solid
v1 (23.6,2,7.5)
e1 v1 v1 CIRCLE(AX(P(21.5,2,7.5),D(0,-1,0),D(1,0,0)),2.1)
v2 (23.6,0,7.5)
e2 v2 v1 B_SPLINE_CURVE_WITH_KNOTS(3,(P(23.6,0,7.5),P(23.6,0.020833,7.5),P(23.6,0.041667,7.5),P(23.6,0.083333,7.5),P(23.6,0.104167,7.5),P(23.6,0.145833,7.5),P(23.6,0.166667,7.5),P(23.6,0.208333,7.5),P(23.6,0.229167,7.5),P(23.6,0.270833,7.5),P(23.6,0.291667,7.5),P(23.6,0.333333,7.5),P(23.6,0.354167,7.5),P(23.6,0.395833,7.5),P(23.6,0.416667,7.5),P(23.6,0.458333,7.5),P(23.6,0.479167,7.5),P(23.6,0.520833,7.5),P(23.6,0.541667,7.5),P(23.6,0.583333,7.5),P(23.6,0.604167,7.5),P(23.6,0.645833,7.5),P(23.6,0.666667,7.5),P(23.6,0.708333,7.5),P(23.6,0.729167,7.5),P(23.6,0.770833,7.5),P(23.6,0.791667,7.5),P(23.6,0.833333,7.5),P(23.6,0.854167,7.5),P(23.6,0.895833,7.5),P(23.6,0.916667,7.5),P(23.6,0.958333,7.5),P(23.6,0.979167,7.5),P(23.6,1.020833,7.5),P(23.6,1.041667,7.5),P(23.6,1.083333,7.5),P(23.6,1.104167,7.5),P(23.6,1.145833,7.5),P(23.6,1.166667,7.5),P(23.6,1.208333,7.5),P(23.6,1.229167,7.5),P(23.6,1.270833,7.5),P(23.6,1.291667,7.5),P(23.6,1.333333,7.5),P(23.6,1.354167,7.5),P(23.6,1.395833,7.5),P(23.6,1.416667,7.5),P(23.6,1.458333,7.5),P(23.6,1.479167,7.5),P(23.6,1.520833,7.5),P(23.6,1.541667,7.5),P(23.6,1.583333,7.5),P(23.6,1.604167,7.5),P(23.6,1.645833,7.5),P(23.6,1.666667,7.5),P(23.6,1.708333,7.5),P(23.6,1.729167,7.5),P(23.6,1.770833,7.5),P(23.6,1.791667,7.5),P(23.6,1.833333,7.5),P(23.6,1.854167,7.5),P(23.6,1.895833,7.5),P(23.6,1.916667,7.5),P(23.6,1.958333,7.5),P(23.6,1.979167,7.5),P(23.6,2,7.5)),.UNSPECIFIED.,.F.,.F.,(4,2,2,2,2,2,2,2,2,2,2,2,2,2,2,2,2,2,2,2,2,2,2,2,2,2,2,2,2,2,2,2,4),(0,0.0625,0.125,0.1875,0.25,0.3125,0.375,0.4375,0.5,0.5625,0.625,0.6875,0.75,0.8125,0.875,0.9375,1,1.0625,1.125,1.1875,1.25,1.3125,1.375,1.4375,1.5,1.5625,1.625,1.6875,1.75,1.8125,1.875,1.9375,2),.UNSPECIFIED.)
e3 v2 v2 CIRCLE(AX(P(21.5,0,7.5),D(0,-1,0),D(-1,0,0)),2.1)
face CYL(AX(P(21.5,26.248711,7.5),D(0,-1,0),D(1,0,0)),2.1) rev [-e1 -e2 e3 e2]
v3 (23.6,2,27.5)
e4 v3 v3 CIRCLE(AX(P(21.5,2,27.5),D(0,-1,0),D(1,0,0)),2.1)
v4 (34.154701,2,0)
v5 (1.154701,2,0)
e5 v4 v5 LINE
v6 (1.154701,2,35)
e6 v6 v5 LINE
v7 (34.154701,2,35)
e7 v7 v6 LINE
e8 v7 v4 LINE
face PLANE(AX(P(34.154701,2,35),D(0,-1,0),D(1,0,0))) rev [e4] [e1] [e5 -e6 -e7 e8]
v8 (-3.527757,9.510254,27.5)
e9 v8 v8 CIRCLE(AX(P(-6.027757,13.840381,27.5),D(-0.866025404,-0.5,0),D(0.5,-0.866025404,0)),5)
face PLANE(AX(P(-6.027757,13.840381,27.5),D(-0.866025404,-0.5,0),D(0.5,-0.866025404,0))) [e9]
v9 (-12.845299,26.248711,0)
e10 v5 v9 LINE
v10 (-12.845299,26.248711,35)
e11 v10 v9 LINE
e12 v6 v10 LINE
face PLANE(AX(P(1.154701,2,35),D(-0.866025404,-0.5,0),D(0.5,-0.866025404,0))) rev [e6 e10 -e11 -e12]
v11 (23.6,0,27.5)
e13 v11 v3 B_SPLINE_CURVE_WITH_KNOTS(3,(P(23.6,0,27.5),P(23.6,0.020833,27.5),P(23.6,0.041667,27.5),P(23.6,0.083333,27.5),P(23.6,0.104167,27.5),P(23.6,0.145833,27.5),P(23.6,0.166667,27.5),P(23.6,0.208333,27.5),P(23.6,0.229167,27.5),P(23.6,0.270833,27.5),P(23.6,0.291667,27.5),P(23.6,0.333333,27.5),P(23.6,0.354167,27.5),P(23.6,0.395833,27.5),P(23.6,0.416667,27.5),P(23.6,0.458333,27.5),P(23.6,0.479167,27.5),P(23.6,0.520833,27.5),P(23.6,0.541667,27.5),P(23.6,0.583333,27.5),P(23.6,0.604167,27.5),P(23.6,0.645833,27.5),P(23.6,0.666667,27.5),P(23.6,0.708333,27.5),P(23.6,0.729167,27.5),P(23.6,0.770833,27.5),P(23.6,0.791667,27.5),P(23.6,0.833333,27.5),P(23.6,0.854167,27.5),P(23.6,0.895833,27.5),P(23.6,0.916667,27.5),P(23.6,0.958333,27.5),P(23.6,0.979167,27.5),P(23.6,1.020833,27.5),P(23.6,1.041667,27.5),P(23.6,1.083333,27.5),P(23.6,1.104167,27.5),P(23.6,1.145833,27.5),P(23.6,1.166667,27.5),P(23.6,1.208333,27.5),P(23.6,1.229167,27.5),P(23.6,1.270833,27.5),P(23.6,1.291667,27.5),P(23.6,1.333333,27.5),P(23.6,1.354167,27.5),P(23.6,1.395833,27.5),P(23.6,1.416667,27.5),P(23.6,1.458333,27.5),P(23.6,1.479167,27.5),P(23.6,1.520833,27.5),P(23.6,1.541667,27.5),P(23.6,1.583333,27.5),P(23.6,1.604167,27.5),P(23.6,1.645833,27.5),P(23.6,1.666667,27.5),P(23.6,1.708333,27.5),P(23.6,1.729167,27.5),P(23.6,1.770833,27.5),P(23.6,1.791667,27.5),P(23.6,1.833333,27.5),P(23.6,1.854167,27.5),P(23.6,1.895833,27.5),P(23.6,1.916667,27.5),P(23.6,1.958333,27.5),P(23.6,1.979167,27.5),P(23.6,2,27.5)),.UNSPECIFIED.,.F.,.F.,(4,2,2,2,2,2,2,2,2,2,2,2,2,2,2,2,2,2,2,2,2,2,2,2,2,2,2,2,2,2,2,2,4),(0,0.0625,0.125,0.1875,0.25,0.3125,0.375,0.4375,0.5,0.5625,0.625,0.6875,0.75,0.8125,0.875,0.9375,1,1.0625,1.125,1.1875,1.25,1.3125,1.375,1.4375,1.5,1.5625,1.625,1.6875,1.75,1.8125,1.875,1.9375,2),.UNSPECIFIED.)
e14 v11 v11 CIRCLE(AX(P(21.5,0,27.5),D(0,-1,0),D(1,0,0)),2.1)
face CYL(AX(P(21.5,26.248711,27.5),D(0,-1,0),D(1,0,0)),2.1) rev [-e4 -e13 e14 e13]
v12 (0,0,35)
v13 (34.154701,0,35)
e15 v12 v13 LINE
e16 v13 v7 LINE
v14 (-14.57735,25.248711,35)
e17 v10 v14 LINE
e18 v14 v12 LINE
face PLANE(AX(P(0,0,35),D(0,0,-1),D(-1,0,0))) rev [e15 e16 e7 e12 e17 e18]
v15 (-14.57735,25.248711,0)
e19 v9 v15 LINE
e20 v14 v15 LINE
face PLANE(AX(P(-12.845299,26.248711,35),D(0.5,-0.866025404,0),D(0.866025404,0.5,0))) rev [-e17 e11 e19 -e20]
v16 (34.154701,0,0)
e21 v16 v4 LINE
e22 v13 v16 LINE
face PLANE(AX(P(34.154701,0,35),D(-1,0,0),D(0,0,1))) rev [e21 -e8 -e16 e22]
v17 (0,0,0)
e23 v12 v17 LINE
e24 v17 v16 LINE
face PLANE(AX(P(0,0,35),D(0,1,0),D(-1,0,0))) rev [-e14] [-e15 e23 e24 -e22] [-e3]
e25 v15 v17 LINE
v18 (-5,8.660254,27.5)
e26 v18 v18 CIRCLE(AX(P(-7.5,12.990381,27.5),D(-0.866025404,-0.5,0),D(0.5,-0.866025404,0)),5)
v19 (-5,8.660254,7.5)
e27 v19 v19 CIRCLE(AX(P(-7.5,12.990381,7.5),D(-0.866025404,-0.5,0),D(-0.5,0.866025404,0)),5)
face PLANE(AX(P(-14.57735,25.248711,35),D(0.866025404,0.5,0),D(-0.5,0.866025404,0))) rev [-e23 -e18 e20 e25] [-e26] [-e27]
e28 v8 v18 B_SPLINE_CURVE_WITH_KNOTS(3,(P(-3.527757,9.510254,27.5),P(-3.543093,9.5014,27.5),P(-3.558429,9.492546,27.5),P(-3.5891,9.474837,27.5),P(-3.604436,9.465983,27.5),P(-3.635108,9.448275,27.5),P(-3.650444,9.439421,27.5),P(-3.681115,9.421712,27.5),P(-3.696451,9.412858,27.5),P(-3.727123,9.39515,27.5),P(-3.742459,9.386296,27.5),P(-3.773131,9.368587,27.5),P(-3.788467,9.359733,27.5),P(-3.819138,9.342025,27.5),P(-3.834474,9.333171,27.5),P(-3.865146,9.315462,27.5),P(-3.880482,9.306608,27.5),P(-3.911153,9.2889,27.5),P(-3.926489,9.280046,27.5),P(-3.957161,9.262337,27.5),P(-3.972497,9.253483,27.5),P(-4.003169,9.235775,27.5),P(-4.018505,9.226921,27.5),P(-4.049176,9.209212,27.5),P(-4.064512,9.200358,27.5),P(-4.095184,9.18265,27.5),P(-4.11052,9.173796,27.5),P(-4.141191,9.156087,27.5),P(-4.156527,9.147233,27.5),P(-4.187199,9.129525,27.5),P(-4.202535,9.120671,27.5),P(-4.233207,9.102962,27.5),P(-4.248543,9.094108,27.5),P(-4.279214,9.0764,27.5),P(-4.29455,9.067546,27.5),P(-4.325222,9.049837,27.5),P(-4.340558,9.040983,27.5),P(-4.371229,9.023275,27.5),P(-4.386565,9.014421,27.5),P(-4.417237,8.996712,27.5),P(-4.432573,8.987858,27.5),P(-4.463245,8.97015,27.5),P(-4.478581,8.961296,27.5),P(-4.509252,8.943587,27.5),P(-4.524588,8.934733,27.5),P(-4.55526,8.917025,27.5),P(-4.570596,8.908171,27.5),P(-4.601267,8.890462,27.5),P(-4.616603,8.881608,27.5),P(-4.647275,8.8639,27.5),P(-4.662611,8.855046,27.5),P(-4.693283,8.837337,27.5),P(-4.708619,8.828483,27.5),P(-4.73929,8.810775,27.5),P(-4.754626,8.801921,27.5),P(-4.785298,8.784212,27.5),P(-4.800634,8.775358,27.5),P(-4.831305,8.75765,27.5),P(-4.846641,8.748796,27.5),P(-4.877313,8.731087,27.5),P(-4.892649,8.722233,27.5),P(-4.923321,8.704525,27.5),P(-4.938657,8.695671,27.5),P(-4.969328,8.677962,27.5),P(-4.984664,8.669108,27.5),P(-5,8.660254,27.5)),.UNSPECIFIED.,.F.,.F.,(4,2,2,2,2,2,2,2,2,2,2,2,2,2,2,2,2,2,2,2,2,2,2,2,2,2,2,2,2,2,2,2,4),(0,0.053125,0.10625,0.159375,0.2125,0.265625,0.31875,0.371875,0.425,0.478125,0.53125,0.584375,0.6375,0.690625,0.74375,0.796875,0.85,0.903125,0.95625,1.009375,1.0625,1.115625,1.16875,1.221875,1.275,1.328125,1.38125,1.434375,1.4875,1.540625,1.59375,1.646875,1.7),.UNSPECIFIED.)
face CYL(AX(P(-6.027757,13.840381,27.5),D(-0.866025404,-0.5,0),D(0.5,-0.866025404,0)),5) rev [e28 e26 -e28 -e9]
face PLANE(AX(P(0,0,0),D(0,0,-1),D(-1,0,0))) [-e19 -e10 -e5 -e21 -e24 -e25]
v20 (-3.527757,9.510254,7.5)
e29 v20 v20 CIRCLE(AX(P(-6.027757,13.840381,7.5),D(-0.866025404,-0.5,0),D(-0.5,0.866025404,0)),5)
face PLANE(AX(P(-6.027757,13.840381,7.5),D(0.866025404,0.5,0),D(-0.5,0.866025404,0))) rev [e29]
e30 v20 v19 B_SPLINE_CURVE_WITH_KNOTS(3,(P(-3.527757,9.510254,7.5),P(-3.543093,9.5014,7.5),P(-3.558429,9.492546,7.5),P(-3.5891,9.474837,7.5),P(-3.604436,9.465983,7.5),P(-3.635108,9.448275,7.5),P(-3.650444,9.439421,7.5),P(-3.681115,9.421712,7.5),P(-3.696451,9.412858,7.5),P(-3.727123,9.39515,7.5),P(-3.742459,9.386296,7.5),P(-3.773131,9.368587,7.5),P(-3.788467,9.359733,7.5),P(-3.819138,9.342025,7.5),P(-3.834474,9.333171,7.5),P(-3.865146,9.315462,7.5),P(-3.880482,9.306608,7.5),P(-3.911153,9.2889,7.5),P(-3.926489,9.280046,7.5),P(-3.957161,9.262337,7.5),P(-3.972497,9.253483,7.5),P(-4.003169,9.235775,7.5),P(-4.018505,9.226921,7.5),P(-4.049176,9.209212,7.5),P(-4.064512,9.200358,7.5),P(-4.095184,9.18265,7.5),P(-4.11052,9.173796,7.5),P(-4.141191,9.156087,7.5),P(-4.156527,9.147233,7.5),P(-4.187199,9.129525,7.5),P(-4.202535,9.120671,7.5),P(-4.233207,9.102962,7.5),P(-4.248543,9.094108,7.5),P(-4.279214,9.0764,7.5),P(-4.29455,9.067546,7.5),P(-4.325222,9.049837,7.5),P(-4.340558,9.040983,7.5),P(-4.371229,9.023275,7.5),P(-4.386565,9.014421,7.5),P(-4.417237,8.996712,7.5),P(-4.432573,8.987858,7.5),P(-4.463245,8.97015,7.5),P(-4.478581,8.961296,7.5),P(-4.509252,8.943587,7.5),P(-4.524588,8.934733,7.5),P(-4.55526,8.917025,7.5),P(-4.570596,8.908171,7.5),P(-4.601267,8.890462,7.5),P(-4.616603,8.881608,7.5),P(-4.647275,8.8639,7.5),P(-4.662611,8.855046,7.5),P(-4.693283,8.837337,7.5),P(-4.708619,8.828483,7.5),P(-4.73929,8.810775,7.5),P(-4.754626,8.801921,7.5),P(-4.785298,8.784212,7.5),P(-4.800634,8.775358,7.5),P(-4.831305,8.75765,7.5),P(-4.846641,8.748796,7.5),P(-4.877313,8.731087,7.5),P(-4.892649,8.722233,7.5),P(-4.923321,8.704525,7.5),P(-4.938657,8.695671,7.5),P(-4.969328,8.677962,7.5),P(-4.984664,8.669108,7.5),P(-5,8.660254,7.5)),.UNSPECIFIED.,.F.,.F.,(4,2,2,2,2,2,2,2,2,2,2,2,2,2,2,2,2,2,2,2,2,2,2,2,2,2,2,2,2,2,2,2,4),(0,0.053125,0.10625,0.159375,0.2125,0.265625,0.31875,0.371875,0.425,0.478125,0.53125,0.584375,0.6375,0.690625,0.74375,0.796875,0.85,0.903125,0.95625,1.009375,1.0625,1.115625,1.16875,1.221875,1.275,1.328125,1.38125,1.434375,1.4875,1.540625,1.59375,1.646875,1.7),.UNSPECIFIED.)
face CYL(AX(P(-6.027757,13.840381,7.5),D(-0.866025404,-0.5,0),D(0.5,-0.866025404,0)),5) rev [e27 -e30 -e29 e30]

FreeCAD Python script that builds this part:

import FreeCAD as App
import Part
import Sketcher
from FreeCAD import Vector
Q = App.Units.Quantity

doc = App.newDocument("Part")
body = doc.addObject("PartDesign::Body", "Body")

# Sketch on XY plane
sketch1 = body.newObject("Sketcher::SketchObject", "Sketch")
sketch1.AttachmentSupport = (doc.getObject("XY_Plane"), [""])
sketch1.MapMode = "FlatFace"
sketch1.addGeometry(Part.LineSegment(Vector(0, 0, 0), Vector(34.154701, 0, 0)), False)
sketch1.addGeometry(Part.LineSegment(Vector(34.154701, 0, 0), Vector(34.154701, 2, 0)), False)
sketch1.addGeometry(Part.LineSegment(Vector(34.154701, 2, 0), Vector(1.154701, 2, 0)), False)
sketch1.addGeometry(Part.LineSegment(Vector(1.154701, 2, 0), Vector(-12.845299, 26.248711, 0)), False)
sketch1.addGeometry(Part.LineSegment(Vector(-12.845299, 26.248711, 0), Vector(-14.57735, 25.248711, 0)), False)
sketch1.addGeometry(Part.LineSegment(Vector(-14.57735, 25.248711, 0), Vector(0, 0, 0)), False)
sketch1.addConstraint(Sketcher.Constraint("Coincident", 0, 2, 1, 1))
sketch1.addConstraint(Sketcher.Constraint("Coincident", 1, 2, 2, 1))
sketch1.addConstraint(Sketcher.Constraint("Coincident", 2, 2, 3, 1))
sketch1.addConstraint(Sketcher.Constraint("Coincident", 3, 2, 4, 1))
sketch1.addConstraint(Sketcher.Constraint("Coincident", 4, 2, 5, 1))
sketch1.addConstraint(Sketcher.Constraint("Coincident", 5, 2, 0, 1))
sketch1.addConstraint(Sketcher.Constraint("Horizontal", 0))
sketch1.addConstraint(Sketcher.Constraint("Vertical", 1))
sketch1.addConstraint(Sketcher.Constraint("Horizontal", 2))
sketch1.addConstraint(Sketcher.Constraint("Coincident", 5, 2, -1, 1))
sketch1.addConstraint(Sketcher.Constraint("Perpendicular", 3, 4))
sketch1.addConstraint(Sketcher.Constraint("Perpendicular", 4, 5))
sketch1.addConstraint(Sketcher.Constraint("DistanceX", 2, 2, 2, 1, 33.0))
sketch1.addConstraint(Sketcher.Constraint("DistanceY", 1, 1, 1, 2, 2.0))
sketch1.addConstraint(Sketcher.Constraint("Angle", 3, Q("120 deg")))
sketch1.addConstraint(Sketcher.Constraint("Distance", 3, 28.0))
sketch1.addConstraint(Sketcher.Constraint("Distance", 4, 2.0))
pad1 = body.newObject("PartDesign::Pad", "Pad")
pad1.Profile = sketch1
pad1.Length = 35

# Sketch on XZ plane
sketch2 = body.newObject("Sketcher::SketchObject", "Sketch001")
sketch2.AttachmentSupport = (doc.getObject("XZ_Plane"), [""])
sketch2.MapMode = "FlatFace"
sketch2.addGeometry(Part.Circle(Vector(21.5, 27.5, 0), Vector(0, 0, 1), 2.1), False)
sketch2.addGeometry(Part.Circle(Vector(21.5, 7.5, 0), Vector(0, 0, 1), 2.1), False)
sketch2.addConstraint(Sketcher.Constraint("Equal", 0, 1))
sketch2.addConstraint(Sketcher.Constraint("Vertical", 0, 3, 1, 3))
sketch2.addConstraint(Sketcher.Constraint("Diameter", 0, 4.2))
sketch2.addConstraint(Sketcher.Constraint("DistanceY", 1, 3, 0, 3, 20.0))
sketch2.addConstraint(Sketcher.Constraint("DistanceX", -1, 1, 0, 3, 21.5))
sketch2.addConstraint(Sketcher.Constraint("DistanceY", -1, 1, 0, 3, 27.5))
pocket1 = body.newObject("PartDesign::Pocket", "Pocket")
pocket1.Profile = sketch2
pocket1.Type = "ThroughAll"

# Sketch on an angled plane
sketch3 = body.newObject("Sketcher::SketchObject", "Sketch002")
sketch3.Placement = App.Placement(Vector(0, 0, 0), App.Rotation(Vector(0, 0, 1), Vector(-0.5, 0.866025404, 0), Vector(-0.866025404, -0.5, 0), "ZXY"))
sketch3.addGeometry(Part.Circle(Vector(27.5, 15, 0), Vector(0, 0, 1), 5), False)
sketch3.addGeometry(Part.Circle(Vector(7.5, 15, 0), Vector(0, 0, 1), 5), False)
sketch3.addConstraint(Sketcher.Constraint("Equal", 0, 1))
sketch3.addConstraint(Sketcher.Constraint("Horizontal", 0, 3, 1, 3))
sketch3.addConstraint(Sketcher.Constraint("Diameter", 0, 10.0))
sketch3.addConstraint(Sketcher.Constraint("DistanceY", -1, 1, 0, 3, 15.0))
sketch3.addConstraint(Sketcher.Constraint("DistanceX", 1, 3, 0, 3, 20.0))
sketch3.addConstraint(Sketcher.Constraint("DistanceX", -1, 1, 0, 3, 27.5))
pocket2 = body.newObject("PartDesign::Pocket", "Pocket001")
pocket2.Profile = sketch3
pocket2.Length = 1.7

doc.recompute()
